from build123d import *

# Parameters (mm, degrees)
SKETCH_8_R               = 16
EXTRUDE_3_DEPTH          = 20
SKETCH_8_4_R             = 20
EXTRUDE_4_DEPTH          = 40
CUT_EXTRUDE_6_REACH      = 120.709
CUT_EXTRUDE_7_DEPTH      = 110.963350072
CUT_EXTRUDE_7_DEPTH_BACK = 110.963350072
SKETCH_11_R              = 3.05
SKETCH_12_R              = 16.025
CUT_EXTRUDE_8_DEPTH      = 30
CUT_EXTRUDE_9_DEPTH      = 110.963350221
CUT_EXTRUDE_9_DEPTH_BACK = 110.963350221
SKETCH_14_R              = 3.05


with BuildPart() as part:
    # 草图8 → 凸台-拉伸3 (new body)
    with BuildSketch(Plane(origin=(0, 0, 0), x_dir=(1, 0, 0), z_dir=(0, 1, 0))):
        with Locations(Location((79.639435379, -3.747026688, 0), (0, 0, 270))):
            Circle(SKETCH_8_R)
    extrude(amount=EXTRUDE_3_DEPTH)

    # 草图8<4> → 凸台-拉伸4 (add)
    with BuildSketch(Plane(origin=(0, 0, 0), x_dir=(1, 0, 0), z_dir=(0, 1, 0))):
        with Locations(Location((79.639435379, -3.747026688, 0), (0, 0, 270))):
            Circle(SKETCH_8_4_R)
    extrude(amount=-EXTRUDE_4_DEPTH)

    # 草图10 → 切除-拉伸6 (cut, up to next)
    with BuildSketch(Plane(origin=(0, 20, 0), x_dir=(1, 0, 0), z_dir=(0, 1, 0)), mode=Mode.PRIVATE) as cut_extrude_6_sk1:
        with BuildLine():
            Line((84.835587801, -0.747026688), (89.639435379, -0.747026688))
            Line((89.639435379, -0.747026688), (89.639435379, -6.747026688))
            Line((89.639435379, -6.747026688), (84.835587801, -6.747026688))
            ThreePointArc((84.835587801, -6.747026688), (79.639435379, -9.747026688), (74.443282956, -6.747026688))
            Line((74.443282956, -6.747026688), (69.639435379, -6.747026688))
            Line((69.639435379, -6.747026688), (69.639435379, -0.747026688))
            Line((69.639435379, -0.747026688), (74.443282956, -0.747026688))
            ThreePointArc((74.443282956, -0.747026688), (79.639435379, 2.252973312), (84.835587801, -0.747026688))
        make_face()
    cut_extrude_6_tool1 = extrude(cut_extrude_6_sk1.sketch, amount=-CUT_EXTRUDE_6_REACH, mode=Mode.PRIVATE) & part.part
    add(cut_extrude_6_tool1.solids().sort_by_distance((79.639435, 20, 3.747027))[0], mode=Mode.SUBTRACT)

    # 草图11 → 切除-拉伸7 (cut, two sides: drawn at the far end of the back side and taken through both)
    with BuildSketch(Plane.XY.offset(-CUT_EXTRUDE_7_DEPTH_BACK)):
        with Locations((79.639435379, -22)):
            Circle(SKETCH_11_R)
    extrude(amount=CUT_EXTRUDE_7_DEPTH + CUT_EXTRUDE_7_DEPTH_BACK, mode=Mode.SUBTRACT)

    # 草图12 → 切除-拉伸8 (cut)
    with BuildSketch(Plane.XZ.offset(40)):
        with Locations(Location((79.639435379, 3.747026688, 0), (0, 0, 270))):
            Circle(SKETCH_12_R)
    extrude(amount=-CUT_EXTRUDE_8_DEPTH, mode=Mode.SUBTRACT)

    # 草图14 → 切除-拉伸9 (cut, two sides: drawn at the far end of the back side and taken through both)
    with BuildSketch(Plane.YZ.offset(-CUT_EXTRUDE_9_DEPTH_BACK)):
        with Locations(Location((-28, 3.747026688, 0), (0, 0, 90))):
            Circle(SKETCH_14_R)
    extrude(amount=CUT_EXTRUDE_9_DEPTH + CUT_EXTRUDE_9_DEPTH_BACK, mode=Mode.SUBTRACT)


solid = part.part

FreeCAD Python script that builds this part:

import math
import FreeCAD as App
import Part
import Sketcher

V = App.Vector
Q = App.Units.Quantity

doc = App.newDocument("Part")
body = doc.addObject("PartDesign::Body", "Body")

sketch1 = body.newObject("Sketcher::SketchObject", "Sketch")
sketch1.AttachmentSupport = (doc.getObject("XZ_Plane"), [""])
sketch1.MapMode = "FlatFace"
sketch1.addGeometry(Part.Circle(V(79.639435, 3.747027, 0), V(0, 0, 1), 16), False)
sketch1.addConstraint([
    Sketcher.Constraint("Diameter", 0, Q("32 mm")),
    Sketcher.Constraint("DistanceX", -1, 1, 0, 3, Q("79.639435 mm")),
    Sketcher.Constraint("DistanceY", -1, 1, 0, 3, Q("3.747027 mm")),
])
pad1 = body.newObject("PartDesign::Pad", "Pad")
pad1.Profile = sketch1
pad1.Length = 20
pad1.Reversed = True

sketch2 = body.newObject("Sketcher::SketchObject", "Sketch001")
sketch2.AttachmentSupport = (doc.getObject("XZ_Plane"), [""])
sketch2.MapMode = "FlatFace"
sketch2.addGeometry(Part.Circle(V(79.639435, 3.747027, 0), V(0, 0, 1), 20), False)
sketch2.addConstraint([
    Sketcher.Constraint("Diameter", 0, Q("40 mm")),
    Sketcher.Constraint("DistanceX", -1, 1, 0, 3, Q("79.639435 mm")),
    Sketcher.Constraint("DistanceY", -1, 1, 0, 3, Q("3.747027 mm")),
])
pad2 = body.newObject("PartDesign::Pad", "Pad001")
pad2.Profile = sketch2
pad2.Length = 40

sketch3 = body.newObject("Sketcher::SketchObject", "Sketch002")
sketch3.AttachmentSupport = (doc.getObject("XZ_Plane"), [""])
sketch3.MapMode = "FlatFace"
sketch3.AttachmentOffset = App.Placement(V(0, 0, -20), App.Rotation())
sketch3.addGeometry([
    Part.LineSegment(V(89.639435, 0.747027, 0), V(84.835588, 0.747027, 0)),
    Part.ArcOfCircle(Part.Circle(V(79.639435, 3.747027, 0), V(0, 0, 1), 6), math.radians(-150), math.radians(-30)),
    Part.LineSegment(V(74.443283, 0.747027, 0), V(69.639435, 0.747027, 0)),
    Part.LineSegment(V(69.639435, 0.747027, 0), V(69.639435, 6.747027, 0)),
    Part.LineSegment(V(69.639435, 6.747027, 0), V(74.443283, 6.747027, 0)),
    Part.ArcOfCircle(Part.Circle(V(79.639435, 3.747027, 0), V(0, 0, 1), 6), math.radians(30), math.radians(150)),
    Part.LineSegment(V(84.835588, 6.747027, 0), V(89.639435, 6.747027, 0)),
    Part.LineSegment(V(89.639435, 6.747027, 0), V(89.639435, 0.747027, 0)),
], False)
sketch3.addConstraint([
    Sketcher.Constraint("Coincident", 0, 2, 1, 2),
    Sketcher.Constraint("Coincident", 1, 1, 2, 1),
    Sketcher.Constraint("Coincident", 2, 2, 3, 1),
    Sketcher.Constraint("Coincident", 3, 2, 4, 1),
    Sketcher.Constraint("Coincident", 4, 2, 5, 2),
    Sketcher.Constraint("Coincident", 5, 1, 6, 1),
    Sketcher.Constraint("Coincident", 6, 2, 7, 1),
    Sketcher.Constraint("Coincident", 7, 2, 0, 1),
    Sketcher.Constraint("Horizontal", 0),
    Sketcher.Constraint("Horizontal", 2),
    Sketcher.Constraint("Vertical", 3),
    Sketcher.Constraint("Horizontal", 4),
    Sketcher.Constraint("Horizontal", 6),
    Sketcher.Constraint("Vertical", 7),
    Sketcher.Constraint("Coincident", 5, 3, 1, 3),
    Sketcher.Constraint("Equal", 1, 5),
    Sketcher.Constraint("Horizontal", 0, 2, 1, 1),
    Sketcher.Constraint("Horizontal", 4, 2, 5, 1),
    Sketcher.Constraint("Vertical", 1, 1, 4, 2),
    Sketcher.Constraint("Equal", 0, 2),
    Sketcher.Constraint("Radius", 1, Q("6 mm")),
    Sketcher.Constraint("DistanceY", 3, 1, 3, 2, Q("6 mm")),
    Sketcher.Constraint("DistanceX", 2, 2, 1, 3, Q("10 mm")),
    Sketcher.Constraint("DistanceX", -1, 1, 1, 3, Q("79.639435 mm")),
    Sketcher.Constraint("DistanceY", -1, 1, 1, 3, Q("3.747027 mm")),
])
pocket1 = body.newObject("PartDesign::Pocket", "Pocket")
pocket1.Profile = sketch3
pocket1.Type = "UpToFirst"
pocket1.Reversed = True

sketch4 = body.newObject("Sketcher::SketchObject", "Sketch003")
sketch4.AttachmentSupport = (doc.getObject("XY_Plane"), [""])
sketch4.MapMode = "FlatFace"
sketch4.addGeometry(Part.Circle(V(79.639435, -22, 0), V(0, 0, 1), 3.05), False)
sketch4.addConstraint([
    Sketcher.Constraint("Diameter", 0, Q("6.1 mm")),
    Sketcher.Constraint("DistanceY", 0, 3, -1, 1, Q("22 mm")),
    Sketcher.Constraint("DistanceX", -1, 1, 0, 3, Q("79.639435 mm")),
])
pocket2 = body.newObject("PartDesign::Pocket", "Pocket001")
pocket2.Profile = sketch4
pocket2.Type = "ThroughAll"
pocket2.Midplane = True

sketch5 = body.newObject("Sketcher::SketchObject", "Sketch004")
sketch5.AttachmentSupport = (doc.getObject("XZ_Plane"), [""])
sketch5.MapMode = "FlatFace"
sketch5.AttachmentOffset = App.Placement(V(0, 0, 40), App.Rotation())
sketch5.addGeometry(Part.Circle(V(79.639435, 3.747027, 0), V(0, 0, 1), 16.025), False)
sketch5.addConstraint([
    Sketcher.Constraint("Diameter", 0, Q("32.05 mm")),
    Sketcher.Constraint("DistanceX", -1, 1, 0, 3, Q("79.639435 mm")),
    Sketcher.Constraint("DistanceY", -1, 1, 0, 3, Q("3.747027 mm")),
])
pocket3 = body.newObject("PartDesign::Pocket", "Pocket002")
pocket3.Profile = sketch5
pocket3.Length = 30

sketch6 = body.newObject("Sketcher::SketchObject", "Sketch005")
sketch6.AttachmentSupport = (doc.getObject("YZ_Plane"), [""])
sketch6.MapMode = "FlatFace"
sketch6.addGeometry(Part.Circle(V(-28, 3.747027, 0), V(0, 0, 1), 3.05), False)
sketch6.addConstraint([
    Sketcher.Constraint("Diameter", 0, Q("6.1 mm")),
    Sketcher.Constraint("DistanceX", 0, 3, -1, 1, Q("28 mm")),
    Sketcher.Constraint("DistanceY", -1, 1, 0, 3, Q("3.747027 mm")),
])
pocket4 = body.newObject("PartDesign::Pocket", "Pocket003")
pocket4.Profile = sketch6
pocket4.Type = "ThroughAll"
pocket4.Midplane = True

doc.recompute()
